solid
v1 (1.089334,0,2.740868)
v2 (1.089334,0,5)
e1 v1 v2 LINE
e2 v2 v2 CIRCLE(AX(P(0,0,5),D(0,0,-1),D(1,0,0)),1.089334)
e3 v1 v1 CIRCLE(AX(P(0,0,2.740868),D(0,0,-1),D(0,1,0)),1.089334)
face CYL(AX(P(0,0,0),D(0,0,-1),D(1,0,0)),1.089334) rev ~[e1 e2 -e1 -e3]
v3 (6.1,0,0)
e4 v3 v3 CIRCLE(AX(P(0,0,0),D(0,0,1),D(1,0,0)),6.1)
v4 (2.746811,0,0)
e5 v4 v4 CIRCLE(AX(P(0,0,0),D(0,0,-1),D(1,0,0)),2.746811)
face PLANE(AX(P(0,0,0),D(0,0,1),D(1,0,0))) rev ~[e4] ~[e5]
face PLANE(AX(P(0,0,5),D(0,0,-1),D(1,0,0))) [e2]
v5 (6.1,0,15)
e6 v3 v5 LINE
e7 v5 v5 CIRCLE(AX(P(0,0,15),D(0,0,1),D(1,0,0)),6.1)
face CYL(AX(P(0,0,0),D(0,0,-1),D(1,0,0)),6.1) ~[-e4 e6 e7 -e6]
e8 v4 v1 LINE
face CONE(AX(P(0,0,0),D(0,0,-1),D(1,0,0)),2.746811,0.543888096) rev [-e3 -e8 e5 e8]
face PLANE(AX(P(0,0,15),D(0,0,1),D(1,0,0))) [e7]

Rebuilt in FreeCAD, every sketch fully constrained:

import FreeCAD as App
import Part
import Sketcher
from FreeCAD import Vector


def add_polygon(sketch, points):
    """Adds a closed chain of lines whose ends are joined by coincident constraints."""
    first, n = sketch.GeometryCount, len(points)
    for a, b in zip(points, points[1:] + points[:1]):
        sketch.addGeometry(Part.LineSegment(App.Vector(*a, 0), App.Vector(*b, 0)), False)
    for i in range(n):
        sketch.addConstraint(Sketcher.Constraint("Coincident", first + i, 2, first + (i + 1) % n, 1))

doc = App.newDocument("Part")
body = doc.addObject("PartDesign::Body", "Body")

sketch1 = body.newObject("Sketcher::SketchObject", "Sketch")
sketch1.AttachmentSupport = (doc.getObject("XY_Plane"), [""])
sketch1.MapMode = "FlatFace"
sketch1.addGeometry(Part.Circle(Vector(0, 0, 0), Vector(0, 0, 1), 6), False)
sketch1.addConstraint([
    Sketcher.Constraint("Coincident", 0, 3, -1, 1),
    Sketcher.Constraint("Diameter", 0, 12.2),
])
pad1 = body.newObject("PartDesign::Pad", "Pad")
pad1.Profile = sketch1
pad1.Length = 15

sketch2 = body.newObject("Sketcher::SketchObject", "Sketch001")
sketch2.AttachmentSupport = (doc.getObject("XZ_Plane"), [""])
sketch2.MapMode = "FlatFace"
add_polygon(sketch2, [(0, 4.5), (0, 0), (2.7, 0)])
sketch2.addConstraint([
    Sketcher.Constraint("Vertical", 0),
    Sketcher.Constraint("Horizontal", 1),
    Sketcher.Constraint("Coincident", 0, 2, -1, 1),
    Sketcher.Constraint("DistanceX", 1, 1, 1, 2, 2.746811),
    Sketcher.Constraint("DistanceY", 0, 2, 0, 1, 4.542232),
])
groove = body.newObject("PartDesign::Groove", "Groove")
groove.Profile = sketch2
groove.ReferenceAxis = (sketch2, ["V_Axis"])
groove.Angle = 360

sketch3 = body.newObject("Sketcher::SketchObject", "Sketch002")
sketch3.AttachmentSupport = (doc.getObject("XY_Plane"), [""])
sketch3.MapMode = "FlatFace"
sketch3.addGeometry(Part.Circle(Vector(0, 0, 0), Vector(0, 0, 1), 1.1), False)
sketch3.addConstraint([
    Sketcher.Constraint("Coincident", 0, 3, -1, 1),
    Sketcher.Constraint("Diameter", 0, 2.178668),
])
pocket1 = body.newObject("PartDesign::Pocket", "Pocket")
pocket1.Profile = sketch3
pocket1.Length = 5
pocket1.Reversed = True

doc.recompute()
